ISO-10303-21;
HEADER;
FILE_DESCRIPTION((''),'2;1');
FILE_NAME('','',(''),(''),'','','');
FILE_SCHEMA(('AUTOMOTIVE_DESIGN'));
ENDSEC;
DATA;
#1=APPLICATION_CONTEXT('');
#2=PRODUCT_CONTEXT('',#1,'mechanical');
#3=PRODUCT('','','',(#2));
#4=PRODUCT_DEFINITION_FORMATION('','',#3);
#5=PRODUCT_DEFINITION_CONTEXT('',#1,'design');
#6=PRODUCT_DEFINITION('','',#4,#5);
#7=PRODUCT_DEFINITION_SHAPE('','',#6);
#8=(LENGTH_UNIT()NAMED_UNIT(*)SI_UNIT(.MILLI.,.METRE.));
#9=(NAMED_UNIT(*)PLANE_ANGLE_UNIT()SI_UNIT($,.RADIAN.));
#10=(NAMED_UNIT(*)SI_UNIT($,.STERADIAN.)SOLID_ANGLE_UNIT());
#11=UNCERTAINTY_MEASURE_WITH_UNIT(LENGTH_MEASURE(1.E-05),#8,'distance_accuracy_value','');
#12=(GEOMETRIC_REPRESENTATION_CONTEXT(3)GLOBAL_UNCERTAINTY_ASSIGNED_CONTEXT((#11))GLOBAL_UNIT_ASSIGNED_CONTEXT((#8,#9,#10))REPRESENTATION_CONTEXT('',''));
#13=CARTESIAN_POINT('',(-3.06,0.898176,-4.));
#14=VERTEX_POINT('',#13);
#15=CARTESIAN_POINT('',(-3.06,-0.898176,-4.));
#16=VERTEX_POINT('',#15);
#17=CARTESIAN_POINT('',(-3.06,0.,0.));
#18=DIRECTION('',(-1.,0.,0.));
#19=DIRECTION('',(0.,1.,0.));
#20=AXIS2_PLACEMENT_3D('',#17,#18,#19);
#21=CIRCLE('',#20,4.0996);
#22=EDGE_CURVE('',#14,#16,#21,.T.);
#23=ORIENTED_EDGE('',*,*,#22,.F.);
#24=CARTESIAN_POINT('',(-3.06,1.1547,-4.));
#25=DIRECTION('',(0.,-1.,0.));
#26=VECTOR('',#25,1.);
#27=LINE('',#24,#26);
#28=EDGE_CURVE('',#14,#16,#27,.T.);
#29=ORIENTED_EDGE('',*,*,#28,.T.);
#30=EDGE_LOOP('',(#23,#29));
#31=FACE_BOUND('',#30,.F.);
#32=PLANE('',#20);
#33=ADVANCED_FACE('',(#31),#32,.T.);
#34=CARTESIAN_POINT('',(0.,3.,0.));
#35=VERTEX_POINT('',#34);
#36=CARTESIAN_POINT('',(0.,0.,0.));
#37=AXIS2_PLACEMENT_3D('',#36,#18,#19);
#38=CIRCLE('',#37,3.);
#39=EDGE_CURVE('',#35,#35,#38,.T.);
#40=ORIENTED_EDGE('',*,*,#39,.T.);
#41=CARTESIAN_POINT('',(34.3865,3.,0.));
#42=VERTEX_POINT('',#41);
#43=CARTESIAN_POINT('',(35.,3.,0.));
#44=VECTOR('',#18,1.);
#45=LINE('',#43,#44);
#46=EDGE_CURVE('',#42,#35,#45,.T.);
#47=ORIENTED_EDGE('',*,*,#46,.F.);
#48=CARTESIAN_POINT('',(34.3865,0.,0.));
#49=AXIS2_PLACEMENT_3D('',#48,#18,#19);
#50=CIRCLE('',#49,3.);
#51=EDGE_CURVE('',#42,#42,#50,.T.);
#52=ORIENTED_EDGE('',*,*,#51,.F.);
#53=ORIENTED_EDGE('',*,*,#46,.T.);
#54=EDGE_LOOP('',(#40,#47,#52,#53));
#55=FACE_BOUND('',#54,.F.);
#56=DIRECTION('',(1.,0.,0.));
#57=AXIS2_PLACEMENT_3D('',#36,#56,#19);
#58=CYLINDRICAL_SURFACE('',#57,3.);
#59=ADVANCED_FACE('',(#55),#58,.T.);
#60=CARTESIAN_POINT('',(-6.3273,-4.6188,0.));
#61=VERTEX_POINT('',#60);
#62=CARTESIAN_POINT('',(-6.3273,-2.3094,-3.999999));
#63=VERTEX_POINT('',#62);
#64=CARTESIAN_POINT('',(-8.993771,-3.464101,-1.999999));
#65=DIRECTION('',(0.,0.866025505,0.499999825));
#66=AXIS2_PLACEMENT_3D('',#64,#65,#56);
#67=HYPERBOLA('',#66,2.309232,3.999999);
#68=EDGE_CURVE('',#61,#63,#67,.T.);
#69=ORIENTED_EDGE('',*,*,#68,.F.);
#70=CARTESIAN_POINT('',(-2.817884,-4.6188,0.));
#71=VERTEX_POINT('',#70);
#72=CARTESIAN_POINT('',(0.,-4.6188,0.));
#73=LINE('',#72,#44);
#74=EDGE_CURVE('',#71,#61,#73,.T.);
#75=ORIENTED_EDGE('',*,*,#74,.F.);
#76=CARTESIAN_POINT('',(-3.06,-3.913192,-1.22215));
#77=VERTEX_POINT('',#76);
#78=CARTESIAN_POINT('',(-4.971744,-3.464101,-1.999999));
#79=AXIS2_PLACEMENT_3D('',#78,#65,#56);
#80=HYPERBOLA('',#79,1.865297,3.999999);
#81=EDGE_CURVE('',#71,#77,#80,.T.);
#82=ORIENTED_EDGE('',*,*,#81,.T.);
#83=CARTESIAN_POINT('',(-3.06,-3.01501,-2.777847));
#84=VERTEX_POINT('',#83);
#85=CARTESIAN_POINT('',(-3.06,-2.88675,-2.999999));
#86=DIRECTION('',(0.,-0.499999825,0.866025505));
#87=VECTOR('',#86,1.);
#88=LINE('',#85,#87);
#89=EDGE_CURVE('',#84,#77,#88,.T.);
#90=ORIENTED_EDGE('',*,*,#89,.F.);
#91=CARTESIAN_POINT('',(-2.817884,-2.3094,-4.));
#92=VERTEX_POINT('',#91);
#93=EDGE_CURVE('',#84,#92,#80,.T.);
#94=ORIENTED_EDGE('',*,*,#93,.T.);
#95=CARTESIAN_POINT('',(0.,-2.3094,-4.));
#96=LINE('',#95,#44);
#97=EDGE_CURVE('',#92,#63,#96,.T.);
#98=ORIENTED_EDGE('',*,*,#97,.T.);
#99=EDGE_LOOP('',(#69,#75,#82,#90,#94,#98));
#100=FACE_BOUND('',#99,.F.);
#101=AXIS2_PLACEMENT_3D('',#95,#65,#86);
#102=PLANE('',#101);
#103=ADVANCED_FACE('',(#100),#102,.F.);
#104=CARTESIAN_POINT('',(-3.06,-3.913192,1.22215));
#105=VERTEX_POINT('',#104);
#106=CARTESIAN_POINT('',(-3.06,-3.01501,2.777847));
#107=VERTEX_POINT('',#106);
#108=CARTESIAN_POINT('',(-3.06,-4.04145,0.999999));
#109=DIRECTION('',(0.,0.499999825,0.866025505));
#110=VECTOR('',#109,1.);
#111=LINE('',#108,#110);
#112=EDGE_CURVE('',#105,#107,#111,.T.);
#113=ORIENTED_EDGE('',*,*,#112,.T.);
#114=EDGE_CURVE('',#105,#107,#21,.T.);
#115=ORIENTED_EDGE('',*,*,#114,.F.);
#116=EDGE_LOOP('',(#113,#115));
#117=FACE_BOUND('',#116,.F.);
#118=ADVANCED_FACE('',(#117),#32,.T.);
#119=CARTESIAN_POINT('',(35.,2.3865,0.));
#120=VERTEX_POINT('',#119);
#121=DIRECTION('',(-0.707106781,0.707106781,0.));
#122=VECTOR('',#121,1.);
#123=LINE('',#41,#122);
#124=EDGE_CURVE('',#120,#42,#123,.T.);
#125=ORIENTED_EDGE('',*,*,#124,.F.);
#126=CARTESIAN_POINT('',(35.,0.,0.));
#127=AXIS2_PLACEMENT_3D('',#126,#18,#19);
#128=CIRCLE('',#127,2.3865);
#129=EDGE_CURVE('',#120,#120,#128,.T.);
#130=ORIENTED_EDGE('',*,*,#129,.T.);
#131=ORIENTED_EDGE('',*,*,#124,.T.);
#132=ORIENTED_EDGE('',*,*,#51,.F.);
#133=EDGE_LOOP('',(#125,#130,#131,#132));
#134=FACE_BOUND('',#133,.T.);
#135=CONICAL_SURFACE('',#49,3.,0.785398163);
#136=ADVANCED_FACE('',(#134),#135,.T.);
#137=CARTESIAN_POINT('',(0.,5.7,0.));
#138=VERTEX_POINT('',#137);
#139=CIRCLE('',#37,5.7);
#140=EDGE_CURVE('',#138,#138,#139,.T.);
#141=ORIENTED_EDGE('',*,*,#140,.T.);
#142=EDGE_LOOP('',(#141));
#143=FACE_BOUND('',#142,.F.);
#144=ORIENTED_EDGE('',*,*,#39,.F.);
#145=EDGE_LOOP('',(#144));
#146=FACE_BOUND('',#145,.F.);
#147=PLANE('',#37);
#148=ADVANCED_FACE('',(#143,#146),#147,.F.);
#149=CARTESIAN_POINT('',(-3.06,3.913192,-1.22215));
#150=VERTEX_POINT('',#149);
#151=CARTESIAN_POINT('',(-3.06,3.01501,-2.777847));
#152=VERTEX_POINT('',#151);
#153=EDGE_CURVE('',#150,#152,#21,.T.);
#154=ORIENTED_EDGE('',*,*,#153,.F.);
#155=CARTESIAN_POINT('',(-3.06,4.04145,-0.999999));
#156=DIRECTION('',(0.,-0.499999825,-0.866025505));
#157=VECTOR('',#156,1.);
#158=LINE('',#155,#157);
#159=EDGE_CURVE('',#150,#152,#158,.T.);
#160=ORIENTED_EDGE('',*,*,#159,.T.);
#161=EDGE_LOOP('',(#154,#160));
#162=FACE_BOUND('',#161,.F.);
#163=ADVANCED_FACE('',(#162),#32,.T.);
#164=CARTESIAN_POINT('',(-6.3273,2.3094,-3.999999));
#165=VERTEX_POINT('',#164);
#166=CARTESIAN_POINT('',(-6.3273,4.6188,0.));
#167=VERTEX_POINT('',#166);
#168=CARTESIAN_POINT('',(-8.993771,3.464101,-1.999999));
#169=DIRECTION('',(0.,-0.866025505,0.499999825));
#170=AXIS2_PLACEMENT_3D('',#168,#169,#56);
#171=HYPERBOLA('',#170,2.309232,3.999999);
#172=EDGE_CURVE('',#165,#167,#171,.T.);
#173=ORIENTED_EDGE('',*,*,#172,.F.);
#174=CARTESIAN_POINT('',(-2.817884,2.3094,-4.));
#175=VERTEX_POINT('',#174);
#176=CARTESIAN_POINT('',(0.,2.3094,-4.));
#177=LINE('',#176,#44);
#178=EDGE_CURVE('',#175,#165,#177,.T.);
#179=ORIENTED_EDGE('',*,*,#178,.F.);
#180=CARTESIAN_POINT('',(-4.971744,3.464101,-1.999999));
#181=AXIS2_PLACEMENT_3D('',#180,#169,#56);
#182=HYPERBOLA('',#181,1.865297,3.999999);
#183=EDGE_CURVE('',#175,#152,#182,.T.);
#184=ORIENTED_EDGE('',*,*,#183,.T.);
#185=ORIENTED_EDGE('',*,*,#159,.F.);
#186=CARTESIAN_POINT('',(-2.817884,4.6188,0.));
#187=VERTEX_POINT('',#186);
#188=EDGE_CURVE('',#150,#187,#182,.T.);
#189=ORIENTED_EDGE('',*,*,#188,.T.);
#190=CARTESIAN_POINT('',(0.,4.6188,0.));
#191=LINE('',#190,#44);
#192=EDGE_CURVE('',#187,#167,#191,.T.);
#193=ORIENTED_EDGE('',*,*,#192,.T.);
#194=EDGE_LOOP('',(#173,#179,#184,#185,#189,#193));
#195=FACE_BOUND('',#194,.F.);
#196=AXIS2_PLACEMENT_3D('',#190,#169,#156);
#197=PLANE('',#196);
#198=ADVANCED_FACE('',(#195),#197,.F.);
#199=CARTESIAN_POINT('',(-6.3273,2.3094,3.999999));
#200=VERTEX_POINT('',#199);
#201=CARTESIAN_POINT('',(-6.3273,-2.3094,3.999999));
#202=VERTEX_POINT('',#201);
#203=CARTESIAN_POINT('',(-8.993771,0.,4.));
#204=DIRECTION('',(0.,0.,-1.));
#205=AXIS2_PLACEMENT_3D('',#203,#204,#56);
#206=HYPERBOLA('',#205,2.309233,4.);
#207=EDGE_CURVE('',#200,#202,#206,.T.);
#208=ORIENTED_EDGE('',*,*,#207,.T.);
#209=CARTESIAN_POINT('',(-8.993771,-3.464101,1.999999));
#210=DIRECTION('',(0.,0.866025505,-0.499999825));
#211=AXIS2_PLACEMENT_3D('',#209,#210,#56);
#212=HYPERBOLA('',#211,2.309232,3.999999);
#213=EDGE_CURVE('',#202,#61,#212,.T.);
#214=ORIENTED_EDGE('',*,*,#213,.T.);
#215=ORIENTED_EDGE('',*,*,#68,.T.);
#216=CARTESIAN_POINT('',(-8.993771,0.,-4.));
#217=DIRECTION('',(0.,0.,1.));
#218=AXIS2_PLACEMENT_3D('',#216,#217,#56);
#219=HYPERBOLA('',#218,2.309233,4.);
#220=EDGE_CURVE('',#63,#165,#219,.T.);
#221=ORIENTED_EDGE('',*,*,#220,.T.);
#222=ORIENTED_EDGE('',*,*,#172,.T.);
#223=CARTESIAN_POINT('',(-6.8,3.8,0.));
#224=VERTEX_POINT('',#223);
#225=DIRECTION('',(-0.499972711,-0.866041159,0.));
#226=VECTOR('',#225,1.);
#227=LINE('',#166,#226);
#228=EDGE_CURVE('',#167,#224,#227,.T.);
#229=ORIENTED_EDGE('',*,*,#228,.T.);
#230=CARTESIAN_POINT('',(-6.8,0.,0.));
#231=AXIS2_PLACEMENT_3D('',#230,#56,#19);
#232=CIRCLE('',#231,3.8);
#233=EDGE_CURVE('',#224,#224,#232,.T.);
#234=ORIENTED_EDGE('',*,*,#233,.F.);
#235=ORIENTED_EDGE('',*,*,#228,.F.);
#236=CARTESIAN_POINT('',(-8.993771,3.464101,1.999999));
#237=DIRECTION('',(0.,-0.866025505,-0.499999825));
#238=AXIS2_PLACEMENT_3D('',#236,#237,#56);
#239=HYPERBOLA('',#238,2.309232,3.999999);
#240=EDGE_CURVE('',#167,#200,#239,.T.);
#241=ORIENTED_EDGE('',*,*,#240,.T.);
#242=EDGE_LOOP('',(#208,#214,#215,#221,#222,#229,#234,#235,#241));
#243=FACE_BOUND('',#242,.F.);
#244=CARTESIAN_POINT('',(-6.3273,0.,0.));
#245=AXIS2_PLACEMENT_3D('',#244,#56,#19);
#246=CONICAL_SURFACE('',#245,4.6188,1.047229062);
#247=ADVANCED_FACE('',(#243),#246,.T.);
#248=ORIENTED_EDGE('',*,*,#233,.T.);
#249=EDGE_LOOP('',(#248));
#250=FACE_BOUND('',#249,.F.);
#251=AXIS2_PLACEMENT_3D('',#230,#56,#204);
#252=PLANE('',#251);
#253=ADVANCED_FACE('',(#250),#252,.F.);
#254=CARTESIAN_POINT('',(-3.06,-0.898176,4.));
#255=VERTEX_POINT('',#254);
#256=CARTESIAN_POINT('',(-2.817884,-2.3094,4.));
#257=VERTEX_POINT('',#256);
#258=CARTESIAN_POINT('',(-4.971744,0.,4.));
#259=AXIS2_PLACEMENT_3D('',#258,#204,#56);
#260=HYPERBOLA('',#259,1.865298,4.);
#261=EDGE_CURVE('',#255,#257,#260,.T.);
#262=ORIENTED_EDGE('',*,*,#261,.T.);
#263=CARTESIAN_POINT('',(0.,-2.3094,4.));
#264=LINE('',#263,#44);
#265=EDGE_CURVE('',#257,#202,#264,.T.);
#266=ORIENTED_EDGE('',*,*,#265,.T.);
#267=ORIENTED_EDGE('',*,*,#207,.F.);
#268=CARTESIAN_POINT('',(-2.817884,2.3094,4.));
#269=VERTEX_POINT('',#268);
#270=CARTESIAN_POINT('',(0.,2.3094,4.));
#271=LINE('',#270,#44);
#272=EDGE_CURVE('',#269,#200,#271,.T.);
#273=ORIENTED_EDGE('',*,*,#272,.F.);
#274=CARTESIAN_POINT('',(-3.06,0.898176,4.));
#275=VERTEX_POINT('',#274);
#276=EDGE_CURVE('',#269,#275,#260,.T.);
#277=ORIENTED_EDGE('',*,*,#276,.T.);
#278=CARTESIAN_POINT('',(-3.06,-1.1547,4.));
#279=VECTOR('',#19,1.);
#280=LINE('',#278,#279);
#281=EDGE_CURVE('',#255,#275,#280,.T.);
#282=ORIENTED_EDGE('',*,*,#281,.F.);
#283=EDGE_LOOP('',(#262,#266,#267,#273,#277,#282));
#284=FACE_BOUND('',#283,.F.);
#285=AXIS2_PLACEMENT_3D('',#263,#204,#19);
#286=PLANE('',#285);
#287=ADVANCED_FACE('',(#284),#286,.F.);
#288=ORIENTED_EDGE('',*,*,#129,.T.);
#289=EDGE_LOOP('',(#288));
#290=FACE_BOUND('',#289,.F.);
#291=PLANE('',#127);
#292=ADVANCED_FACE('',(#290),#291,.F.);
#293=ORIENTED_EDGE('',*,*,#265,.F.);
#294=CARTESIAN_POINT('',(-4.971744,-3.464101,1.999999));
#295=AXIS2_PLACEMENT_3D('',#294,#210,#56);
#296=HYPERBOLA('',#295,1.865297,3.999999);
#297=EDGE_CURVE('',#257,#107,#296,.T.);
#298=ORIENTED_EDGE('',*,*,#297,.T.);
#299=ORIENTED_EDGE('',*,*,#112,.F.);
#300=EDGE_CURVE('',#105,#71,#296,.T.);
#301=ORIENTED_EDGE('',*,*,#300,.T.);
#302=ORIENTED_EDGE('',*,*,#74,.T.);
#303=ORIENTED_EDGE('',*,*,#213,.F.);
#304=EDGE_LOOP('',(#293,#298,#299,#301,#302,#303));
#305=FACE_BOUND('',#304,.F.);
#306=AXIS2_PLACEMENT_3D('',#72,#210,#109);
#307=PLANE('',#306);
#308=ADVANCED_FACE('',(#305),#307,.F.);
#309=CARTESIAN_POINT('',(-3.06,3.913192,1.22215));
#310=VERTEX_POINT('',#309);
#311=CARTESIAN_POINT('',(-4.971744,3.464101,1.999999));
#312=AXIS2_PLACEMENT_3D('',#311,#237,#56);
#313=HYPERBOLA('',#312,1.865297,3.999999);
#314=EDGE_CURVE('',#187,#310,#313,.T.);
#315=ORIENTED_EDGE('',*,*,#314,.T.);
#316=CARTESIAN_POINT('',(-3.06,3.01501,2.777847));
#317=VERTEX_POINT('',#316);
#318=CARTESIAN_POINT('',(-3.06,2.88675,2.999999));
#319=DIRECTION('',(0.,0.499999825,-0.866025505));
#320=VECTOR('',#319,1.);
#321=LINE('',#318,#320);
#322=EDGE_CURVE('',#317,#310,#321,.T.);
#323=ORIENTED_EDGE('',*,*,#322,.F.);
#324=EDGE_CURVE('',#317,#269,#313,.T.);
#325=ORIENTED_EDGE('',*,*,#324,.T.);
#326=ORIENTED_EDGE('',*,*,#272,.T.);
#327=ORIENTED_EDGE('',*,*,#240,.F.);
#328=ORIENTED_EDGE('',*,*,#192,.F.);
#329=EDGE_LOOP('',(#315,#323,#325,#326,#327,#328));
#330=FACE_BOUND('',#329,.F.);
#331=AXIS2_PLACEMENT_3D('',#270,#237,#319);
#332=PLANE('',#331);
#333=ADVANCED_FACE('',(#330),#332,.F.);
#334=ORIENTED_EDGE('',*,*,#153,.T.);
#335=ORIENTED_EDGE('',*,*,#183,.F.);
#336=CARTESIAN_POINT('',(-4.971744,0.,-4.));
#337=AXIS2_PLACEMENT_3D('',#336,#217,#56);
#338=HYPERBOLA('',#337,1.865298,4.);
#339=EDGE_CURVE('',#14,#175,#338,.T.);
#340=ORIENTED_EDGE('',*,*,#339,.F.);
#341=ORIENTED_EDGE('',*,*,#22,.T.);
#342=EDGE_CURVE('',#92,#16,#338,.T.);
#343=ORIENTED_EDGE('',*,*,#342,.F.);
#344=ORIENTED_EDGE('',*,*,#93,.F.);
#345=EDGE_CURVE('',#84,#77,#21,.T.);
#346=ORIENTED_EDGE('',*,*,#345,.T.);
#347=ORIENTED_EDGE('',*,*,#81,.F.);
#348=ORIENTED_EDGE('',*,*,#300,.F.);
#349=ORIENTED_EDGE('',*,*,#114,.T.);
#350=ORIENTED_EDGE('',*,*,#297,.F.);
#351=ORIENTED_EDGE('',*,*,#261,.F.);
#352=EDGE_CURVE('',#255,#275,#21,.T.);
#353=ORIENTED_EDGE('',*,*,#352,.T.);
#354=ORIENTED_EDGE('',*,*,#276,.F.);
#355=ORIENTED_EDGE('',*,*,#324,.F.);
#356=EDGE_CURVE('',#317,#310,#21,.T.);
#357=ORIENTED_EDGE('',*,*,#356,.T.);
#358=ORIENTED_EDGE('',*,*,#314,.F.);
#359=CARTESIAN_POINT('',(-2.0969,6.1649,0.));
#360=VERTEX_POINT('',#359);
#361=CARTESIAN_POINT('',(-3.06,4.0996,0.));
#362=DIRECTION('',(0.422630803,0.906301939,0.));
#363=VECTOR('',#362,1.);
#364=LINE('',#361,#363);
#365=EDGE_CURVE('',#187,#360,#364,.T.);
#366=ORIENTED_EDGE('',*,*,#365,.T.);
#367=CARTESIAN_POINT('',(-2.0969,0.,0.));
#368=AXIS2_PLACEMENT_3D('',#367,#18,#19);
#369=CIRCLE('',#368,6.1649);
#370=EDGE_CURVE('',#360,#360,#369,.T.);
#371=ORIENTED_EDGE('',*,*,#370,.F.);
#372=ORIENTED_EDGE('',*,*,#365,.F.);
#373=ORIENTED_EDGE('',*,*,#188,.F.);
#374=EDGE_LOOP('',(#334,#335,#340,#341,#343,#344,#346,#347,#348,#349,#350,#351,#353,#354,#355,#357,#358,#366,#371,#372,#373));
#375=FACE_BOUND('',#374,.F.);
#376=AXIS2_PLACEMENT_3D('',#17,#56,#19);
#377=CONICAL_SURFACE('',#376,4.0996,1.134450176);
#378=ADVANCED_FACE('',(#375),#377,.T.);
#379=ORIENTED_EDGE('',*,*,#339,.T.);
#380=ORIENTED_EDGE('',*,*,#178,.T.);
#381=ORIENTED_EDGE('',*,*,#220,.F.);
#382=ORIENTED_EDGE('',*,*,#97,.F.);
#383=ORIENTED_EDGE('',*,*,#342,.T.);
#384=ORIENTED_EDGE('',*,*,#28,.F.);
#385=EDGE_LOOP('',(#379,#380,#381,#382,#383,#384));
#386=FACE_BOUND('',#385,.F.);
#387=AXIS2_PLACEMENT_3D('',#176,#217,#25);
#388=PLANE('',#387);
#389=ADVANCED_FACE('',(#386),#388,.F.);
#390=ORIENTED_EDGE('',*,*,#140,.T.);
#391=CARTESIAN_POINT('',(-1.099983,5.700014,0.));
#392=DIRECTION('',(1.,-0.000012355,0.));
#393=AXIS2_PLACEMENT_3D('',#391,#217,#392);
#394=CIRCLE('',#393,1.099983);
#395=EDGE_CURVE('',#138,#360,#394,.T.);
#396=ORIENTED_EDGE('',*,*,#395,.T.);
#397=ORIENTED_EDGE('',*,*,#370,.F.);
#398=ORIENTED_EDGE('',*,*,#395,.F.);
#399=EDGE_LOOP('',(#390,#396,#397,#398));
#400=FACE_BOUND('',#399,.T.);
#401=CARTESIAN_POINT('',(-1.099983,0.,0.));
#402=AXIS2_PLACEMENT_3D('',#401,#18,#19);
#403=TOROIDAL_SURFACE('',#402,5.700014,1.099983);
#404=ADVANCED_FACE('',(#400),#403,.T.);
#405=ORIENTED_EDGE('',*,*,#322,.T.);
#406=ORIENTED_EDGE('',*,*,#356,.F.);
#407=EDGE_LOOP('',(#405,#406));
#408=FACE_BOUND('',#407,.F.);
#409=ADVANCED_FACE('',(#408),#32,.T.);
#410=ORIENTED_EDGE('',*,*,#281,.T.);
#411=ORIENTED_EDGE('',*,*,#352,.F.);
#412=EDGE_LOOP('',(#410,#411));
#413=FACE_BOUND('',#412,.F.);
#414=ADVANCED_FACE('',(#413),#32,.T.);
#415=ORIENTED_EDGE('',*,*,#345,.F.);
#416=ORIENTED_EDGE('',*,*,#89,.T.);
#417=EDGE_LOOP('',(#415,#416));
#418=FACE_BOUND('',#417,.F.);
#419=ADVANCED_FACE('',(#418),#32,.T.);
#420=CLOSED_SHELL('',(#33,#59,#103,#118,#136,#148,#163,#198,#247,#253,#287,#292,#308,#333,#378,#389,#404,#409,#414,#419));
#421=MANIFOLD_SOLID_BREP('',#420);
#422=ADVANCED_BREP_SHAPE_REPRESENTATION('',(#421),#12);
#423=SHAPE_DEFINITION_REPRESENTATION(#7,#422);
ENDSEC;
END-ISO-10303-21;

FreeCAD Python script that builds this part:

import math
import FreeCAD as App
import Part
import Sketcher

V = App.Vector
Q = App.Units.Quantity


def edges_at(feature, points):
    """Names of the edges that pass closest to the given points."""
    edges = feature.Shape.Edges
    near = lambda p: min(range(len(edges)), key=lambda i: edges[i].distToShape(Part.Vertex(*p))[0])
    return sorted({f"Edge{near(p) + 1}" for p in points})

doc = App.newDocument("Part")
body = doc.addObject("PartDesign::Body", "Body")

# Sketch on XY plane
sketch1 = body.newObject("Sketcher::SketchObject", "Sketch")
sketch1.AttachmentSupport = (doc.getObject("XY_Plane"), [""])
sketch1.MapMode = "FlatFace"
sketch1.addGeometry(Part.LineSegment(V(-3.1, 4.1, 0), V(-3.1, 0, 0)), False)
sketch1.addGeometry(Part.LineSegment(V(-3.1, 0, 0), V(35, 0, 0)), False)
sketch1.addGeometry(Part.LineSegment(V(35, 0, 0), V(35, 3, 0)), False)
sketch1.addGeometry(Part.LineSegment(V(35, 3, 0), V(0, 3, 0)), False)
sketch1.addGeometry(Part.LineSegment(V(0, 3, 0), V(0, 5.7, 0)), False)
sketch1.addGeometry(Part.ArcOfCircle(Part.Circle(V(-1.1, 5.7, 0), V(0, 0, 1), 1.1), math.radians(0), math.radians(155)), False)
sketch1.addGeometry(Part.LineSegment(V(-2.1, 6.2, 0), V(-3.1, 4.1, 0)), False)
sketch1.addConstraint(Sketcher.Constraint("Coincident", 0, 2, 1, 1))
sketch1.addConstraint(Sketcher.Constraint("Coincident", 1, 2, 2, 1))
sketch1.addConstraint(Sketcher.Constraint("Coincident", 2, 2, 3, 1))
sketch1.addConstraint(Sketcher.Constraint("Coincident", 3, 2, 4, 1))
sketch1.addConstraint(Sketcher.Constraint("Tangent", 4, 2, 5, 1))
sketch1.addConstraint(Sketcher.Constraint("Tangent", 5, 2, 6, 1))
sketch1.addConstraint(Sketcher.Constraint("Coincident", 6, 2, 0, 1))
sketch1.addConstraint(Sketcher.Constraint("Vertical", 0))
sketch1.addConstraint(Sketcher.Constraint("Horizontal", 1))
sketch1.addConstraint(Sketcher.Constraint("Vertical", 2))
sketch1.addConstraint(Sketcher.Constraint("Horizontal", 3))
sketch1.addConstraint(Sketcher.Constraint("Vertical", 4))
sketch1.addConstraint(Sketcher.Constraint("PointOnObject", 0, 2, -1))
sketch1.addConstraint(Sketcher.Constraint("PointOnObject", 3, 2, -2))
sketch1.addConstraint(Sketcher.Constraint("Radius", 5, 1.1))
sketch1.addConstraint(Sketcher.Constraint("DistanceX", 3, 2, 3, 1, 35.0))
sketch1.addConstraint(Sketcher.Constraint("DistanceY", 2, 1, 2, 2, 3.0))
sketch1.addConstraint(Sketcher.Constraint("DistanceX", 0, 2, -1, 1, 3.06))
sketch1.addConstraint(Sketcher.Constraint("Angle", 6, Q("-115.0008 deg")))
sketch1.addConstraint(Sketcher.Constraint("DistanceY", 4, 1, 4, 2, 2.7))
revolution = body.newObject("PartDesign::Revolution", "Revolution")
revolution.Profile = sketch1
revolution.ReferenceAxis = (sketch1, ["H_Axis"])
revolution.Angle = 360

# Sketch on YZ plane
sketch2 = body.newObject("Sketcher::SketchObject", "Sketch001")
sketch2.AttachmentSupport = (doc.getObject("YZ_Plane"), [""])
sketch2.MapMode = "FlatFace"
sketch2.addGeometry(Part.LineSegment(V(-2.3, -4, 0), V(2.3, -4, 0)), False)
sketch2.addGeometry(Part.LineSegment(V(2.3, -4, 0), V(4.6, 0, 0)), False)
sketch2.addGeometry(Part.LineSegment(V(4.6, 0, 0), V(2.3, 4, 0)), False)
sketch2.addGeometry(Part.LineSegment(V(2.3, 4, 0), V(-2.3, 4, 0)), False)
sketch2.addGeometry(Part.LineSegment(V(-2.3, 4, 0), V(-4.6, 0, 0)), False)
sketch2.addGeometry(Part.LineSegment(V(-4.6, 0, 0), V(-2.3, -4, 0)), False)
sketch2.addConstraint(Sketcher.Constraint("Coincident", 0, 2, 1, 1))
sketch2.addConstraint(Sketcher.Constraint("Coincident", 1, 2, 2, 1))
sketch2.addConstraint(Sketcher.Constraint("Coincident", 2, 2, 3, 1))
sketch2.addConstraint(Sketcher.Constraint("Coincident", 3, 2, 4, 1))
sketch2.addConstraint(Sketcher.Constraint("Coincident", 4, 2, 5, 1))
sketch2.addConstraint(Sketcher.Constraint("Coincident", 5, 2, 0, 1))
sketch2.addConstraint(Sketcher.Constraint("Horizontal", 0))
sketch2.addConstraint(Sketcher.Constraint("Horizontal", 3))
sketch2.addConstraint(Sketcher.Constraint("Symmetric", 0, 2, 3, 2, -1, 1))
sketch2.addConstraint(Sketcher.Constraint("Symmetric", 1, 2, 4, 2, -1, 1))
sketch2.addConstraint(Sketcher.Constraint("PointOnObject", 1, 2, -1))
sketch2.addConstraint(Sketcher.Constraint("Parallel", 2, 5))
sketch2.addConstraint(Sketcher.Constraint("Vertical", 0, 2, 2, 2))
sketch2.addConstraint(Sketcher.Constraint("DistanceY", 0, 2, 2, 2, 8.0))
sketch2.addConstraint(Sketcher.Constraint("Angle", 1, Q("60 deg")))
sketch2.addConstraint(Sketcher.Constraint("DistanceX", 0, 1, 0, 2, 4.6188))
pad1 = body.newObject("PartDesign::Pad", "Pad")
pad1.Profile = sketch2
pad1.Length = 6.8
pad1.Reversed = True

# Sketch on XY plane
sketch3 = body.newObject("Sketcher::SketchObject", "Sketch002")
sketch3.AttachmentSupport = (doc.getObject("XY_Plane"), [""])
sketch3.MapMode = "FlatFace"
sketch3.addGeometry(Part.LineSegment(V(-6.8, 4.62, 0), V(-6.8, 3.8, 0)), False)
sketch3.addGeometry(Part.LineSegment(V(-6.8, 3.8, 0), V(-6.33, 4.62, 0)), False)
sketch3.addGeometry(Part.LineSegment(V(-6.33, 4.62, 0), V(-6.8, 4.62, 0)), False)
sketch3.addConstraint(Sketcher.Constraint("Coincident", 0, 2, 1, 1))
sketch3.addConstraint(Sketcher.Constraint("Coincident", 1, 2, 2, 1))
sketch3.addConstraint(Sketcher.Constraint("Coincident", 2, 2, 0, 1))
sketch3.addConstraint(Sketcher.Constraint("Vertical", 0))
sketch3.addConstraint(Sketcher.Constraint("Horizontal", 2))
sketch3.addConstraint(Sketcher.Constraint("DistanceX", 0, 2, -1, 1, 6.8))
sketch3.addConstraint(Sketcher.Constraint("DistanceY", -1, 1, 0, 2, 3.8))
sketch3.addConstraint(Sketcher.Constraint("DistanceX", 2, 2, 2, 1, 0.4727))
sketch3.addConstraint(Sketcher.Constraint("DistanceY", 0, 2, 0, 1, 0.8188))
groove = body.newObject("PartDesign::Groove", "Groove")
groove.Profile = sketch3
groove.ReferenceAxis = (sketch3, ["H_Axis"])
groove.Angle = 360
doc.recompute()

chamfer = body.newObject("PartDesign::Chamfer", "Chamfer")
chamfer.Base = (groove, edges_at(groove, [(35, -3, 0)]))
chamfer.ChamferType = "Two distances"
chamfer.Size = 0.6135
chamfer.Size2 = 0.6135

doc.recompute()
